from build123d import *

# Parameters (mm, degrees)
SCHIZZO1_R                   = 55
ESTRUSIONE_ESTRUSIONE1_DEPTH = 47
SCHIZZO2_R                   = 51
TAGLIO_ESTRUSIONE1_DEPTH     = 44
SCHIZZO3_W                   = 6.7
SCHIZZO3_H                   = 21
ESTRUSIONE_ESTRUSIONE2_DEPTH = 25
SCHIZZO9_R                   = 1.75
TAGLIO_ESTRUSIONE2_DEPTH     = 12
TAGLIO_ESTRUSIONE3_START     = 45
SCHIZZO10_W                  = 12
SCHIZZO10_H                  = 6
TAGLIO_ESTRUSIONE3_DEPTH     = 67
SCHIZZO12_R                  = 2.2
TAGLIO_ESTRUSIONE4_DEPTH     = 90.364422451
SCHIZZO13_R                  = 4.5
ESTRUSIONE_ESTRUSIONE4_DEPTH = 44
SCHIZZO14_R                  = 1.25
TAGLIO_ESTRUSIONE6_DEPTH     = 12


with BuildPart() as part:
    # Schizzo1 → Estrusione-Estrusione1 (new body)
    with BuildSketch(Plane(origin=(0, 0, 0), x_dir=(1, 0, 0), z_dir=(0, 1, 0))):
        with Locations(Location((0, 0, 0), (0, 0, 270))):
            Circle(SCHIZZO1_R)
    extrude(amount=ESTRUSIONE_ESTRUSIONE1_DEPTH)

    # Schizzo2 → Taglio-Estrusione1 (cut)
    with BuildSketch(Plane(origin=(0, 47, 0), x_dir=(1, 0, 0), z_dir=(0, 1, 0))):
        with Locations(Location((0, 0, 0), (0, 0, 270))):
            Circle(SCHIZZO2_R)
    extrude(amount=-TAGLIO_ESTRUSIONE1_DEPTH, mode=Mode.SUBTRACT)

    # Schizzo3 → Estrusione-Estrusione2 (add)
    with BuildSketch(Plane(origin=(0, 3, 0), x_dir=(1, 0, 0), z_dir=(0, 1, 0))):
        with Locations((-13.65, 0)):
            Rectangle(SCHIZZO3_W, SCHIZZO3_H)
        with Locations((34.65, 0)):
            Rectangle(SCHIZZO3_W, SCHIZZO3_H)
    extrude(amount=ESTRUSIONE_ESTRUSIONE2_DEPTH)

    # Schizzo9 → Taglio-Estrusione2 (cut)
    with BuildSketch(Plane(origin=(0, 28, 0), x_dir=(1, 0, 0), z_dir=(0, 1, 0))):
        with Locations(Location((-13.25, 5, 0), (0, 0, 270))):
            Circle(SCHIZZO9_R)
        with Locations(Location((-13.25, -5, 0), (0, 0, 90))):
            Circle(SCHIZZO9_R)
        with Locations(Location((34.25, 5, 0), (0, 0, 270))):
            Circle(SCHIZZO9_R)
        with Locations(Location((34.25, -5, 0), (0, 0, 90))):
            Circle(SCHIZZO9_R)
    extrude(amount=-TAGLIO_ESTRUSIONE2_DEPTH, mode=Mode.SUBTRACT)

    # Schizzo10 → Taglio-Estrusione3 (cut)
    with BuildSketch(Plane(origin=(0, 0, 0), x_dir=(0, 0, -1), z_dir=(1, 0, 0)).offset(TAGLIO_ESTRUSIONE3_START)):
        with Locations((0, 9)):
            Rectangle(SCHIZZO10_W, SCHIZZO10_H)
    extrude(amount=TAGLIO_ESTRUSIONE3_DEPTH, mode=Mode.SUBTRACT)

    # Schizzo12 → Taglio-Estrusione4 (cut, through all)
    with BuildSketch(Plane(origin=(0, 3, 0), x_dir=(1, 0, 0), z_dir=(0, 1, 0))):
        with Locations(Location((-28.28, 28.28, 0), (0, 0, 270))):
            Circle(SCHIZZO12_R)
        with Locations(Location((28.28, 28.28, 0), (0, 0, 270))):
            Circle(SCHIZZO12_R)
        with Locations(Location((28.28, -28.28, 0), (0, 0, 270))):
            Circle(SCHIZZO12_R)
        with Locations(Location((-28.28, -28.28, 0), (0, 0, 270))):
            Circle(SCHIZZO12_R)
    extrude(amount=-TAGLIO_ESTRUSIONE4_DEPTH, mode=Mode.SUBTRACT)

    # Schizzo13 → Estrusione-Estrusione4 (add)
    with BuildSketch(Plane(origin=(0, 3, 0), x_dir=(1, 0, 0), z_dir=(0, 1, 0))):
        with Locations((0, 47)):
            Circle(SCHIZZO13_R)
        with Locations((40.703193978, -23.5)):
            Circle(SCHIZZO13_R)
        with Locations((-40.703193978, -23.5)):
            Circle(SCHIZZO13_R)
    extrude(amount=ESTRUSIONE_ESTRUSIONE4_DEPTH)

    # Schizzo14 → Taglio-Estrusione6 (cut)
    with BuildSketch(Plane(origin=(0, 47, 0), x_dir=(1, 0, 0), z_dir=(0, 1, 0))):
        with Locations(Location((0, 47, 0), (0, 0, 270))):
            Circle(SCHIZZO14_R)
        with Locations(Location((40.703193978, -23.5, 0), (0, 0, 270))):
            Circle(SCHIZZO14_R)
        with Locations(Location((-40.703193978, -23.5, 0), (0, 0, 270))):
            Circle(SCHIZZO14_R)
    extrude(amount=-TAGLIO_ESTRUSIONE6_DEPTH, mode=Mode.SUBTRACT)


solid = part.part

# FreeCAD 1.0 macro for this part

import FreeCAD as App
import Part
import Sketcher

doc = App.newDocument("Part")
params = doc.addObject("Spreadsheet::Sheet", "Params")
for row, (alias, value) in enumerate([
    ("sketch1_diameter", "110 mm"),
    ("pad1_length", "47 mm"),
    ("sketch2_diameter", "102 mm"),
    ("pocket1_length", "44 mm"),
    ("sketch3_height", "21 mm"),
    ("sketch3_width", "6.7 mm"),
    ("pad2_length", "25 mm"),
    ("sketch4_diameter", "3.5 mm"),
    ("pocket2_length", "12 mm"),
    ("sketch5_width", "6 mm"),
    ("sketch5_height", "12 mm"),
    ("pocket3_length", "67 mm"),
    ("sketch6_diameter", "4.4 mm"),
    ("sketch7_diameter", "9 mm"),
    ("pad3_length", "44 mm"),
    ("sketch8_diameter", "2.5 mm"),
    ("pocket5_length", "12 mm"),
], start=1):
    params.set(f"A{row}", alias)
    params.set(f"B{row}", "=" + value)
    params.setAlias(f"B{row}", alias)

body = doc.addObject("PartDesign::Body", "Body")

# Sketch on XZ plane
sketch1 = doc.addObject("Sketcher::SketchObject", "Sketch")
body.addObject(sketch1)
sketch1.AttachmentSupport = (doc.XZ_Plane, [""])
sketch1.MapMode = "FlatFace"
sketch1.addGeometry(Part.Circle(App.Vector(0, 0, 0), App.Vector(0, 0, 1), 55), False)
sketch1.addConstraint([
    Sketcher.Constraint("Coincident", 0, 3, -1, 1),
    Sketcher.Constraint("Diameter", 0, 110.0),
])
sketch1.setExpression("Constraints[1]", "Params.sketch1_diameter")
pad1 = doc.addObject("PartDesign::Pad", "Pad")
body.addObject(pad1)
pad1.Profile = sketch1
pad1.setExpression("Length", "Params.pad1_length")
pad1.Reversed = True

# Sketch on XZ plane
sketch2 = doc.addObject("Sketcher::SketchObject", "Sketch001")
body.addObject(sketch2)
sketch2.AttachmentSupport = (doc.XZ_Plane, [""])
sketch2.MapMode = "FlatFace"
sketch2.AttachmentOffset = App.Placement(App.Vector(0, 0, -47), App.Rotation())
sketch2.addGeometry(Part.Circle(App.Vector(0, 0, 0), App.Vector(0, 0, 1), 51), False)
sketch2.addConstraint([
    Sketcher.Constraint("Coincident", 0, 3, -1, 1),
    Sketcher.Constraint("Diameter", 0, 102.0),
])
sketch2.setExpression("Constraints[1]", "Params.sketch2_diameter")
pocket1 = doc.addObject("PartDesign::Pocket", "Pocket")
body.addObject(pocket1)
pocket1.Profile = sketch2
pocket1.setExpression("Length", "Params.pocket1_length")
pocket1.Reversed = True

# Sketch on XZ plane
sketch3 = doc.addObject("Sketcher::SketchObject", "Sketch002")
body.addObject(sketch3)
sketch3.AttachmentSupport = (doc.XZ_Plane, [""])
sketch3.MapMode = "FlatFace"
sketch3.AttachmentOffset = App.Placement(App.Vector(0, 0, -3), App.Rotation())
sketch3.addGeometry([
    Part.LineSegment(App.Vector(-17, -10, 0), App.Vector(-17, 10, 0)),  # 0
    Part.LineSegment(App.Vector(-17, 10, 0), App.Vector(-10, 10, 0)),  # 1
    Part.LineSegment(App.Vector(-10, 10, 0), App.Vector(-10, -10, 0)),  # 2
    Part.LineSegment(App.Vector(-10, -10, 0), App.Vector(-17, -10, 0)),  # 3
    Part.LineSegment(App.Vector(31, -10, 0), App.Vector(31, 10, 0)),  # 4
    Part.LineSegment(App.Vector(31, 10, 0), App.Vector(38, 10, 0)),  # 5
    Part.LineSegment(App.Vector(38, 10, 0), App.Vector(38, -10, 0)),  # 6
    Part.LineSegment(App.Vector(38, -10, 0), App.Vector(31, -10, 0)),  # 7
], False)
sketch3.addConstraint([
    Sketcher.Constraint("Coincident", 0, 2, 1, 1),
    Sketcher.Constraint("Coincident", 1, 2, 2, 1),
    Sketcher.Constraint("Coincident", 2, 2, 3, 1),
    Sketcher.Constraint("Coincident", 3, 2, 0, 1),
    Sketcher.Constraint("Coincident", 4, 2, 5, 1),
    Sketcher.Constraint("Coincident", 5, 2, 6, 1),
    Sketcher.Constraint("Coincident", 6, 2, 7, 1),
    Sketcher.Constraint("Coincident", 7, 2, 4, 1),
    Sketcher.Constraint("Vertical", 0),
    Sketcher.Constraint("Horizontal", 1),
    Sketcher.Constraint("Vertical", 2),
    Sketcher.Constraint("Horizontal", 3),
    Sketcher.Constraint("Vertical", 4),
    Sketcher.Constraint("Horizontal", 5),
    Sketcher.Constraint("Vertical", 6),
    Sketcher.Constraint("Horizontal", 7),
    Sketcher.Constraint("Horizontal", 1, 2, 4, 2),
    Sketcher.Constraint("Horizontal", 3, 2, 6, 2),
    Sketcher.Constraint("Equal", 3, 5),
    Sketcher.Constraint("DistanceY", 0, 1, 0, 2, 21.0),
    Sketcher.Constraint("DistanceX", 1, 1, 1, 2, 6.7),
    Sketcher.Constraint("DistanceX", 0, 2, -1, 1, 17.0),
    Sketcher.Constraint("DistanceX", -1, 1, 5, 2, 38.0),
    Sketcher.Constraint("DistanceY", -1, 1, 0, 2, 10.5),
])
sketch3.setExpression("Constraints[19]", "Params.sketch3_height")
sketch3.setExpression("Constraints[20]", "Params.sketch3_width")
pad2 = doc.addObject("PartDesign::Pad", "Pad001")
body.addObject(pad2)
pad2.Profile = sketch3
pad2.setExpression("Length", "Params.pad2_length")
pad2.Reversed = True

# Sketch on XZ plane
sketch4 = doc.addObject("Sketcher::SketchObject", "Sketch003")
body.addObject(sketch4)
sketch4.AttachmentSupport = (doc.XZ_Plane, [""])
sketch4.MapMode = "FlatFace"
sketch4.AttachmentOffset = App.Placement(App.Vector(0, 0, -28), App.Rotation())
sketch4.addGeometry([
    Part.Circle(App.Vector(-13.2, -5, 0), App.Vector(0, 0, 1), 1.8),
    Part.Circle(App.Vector(-13.2, 5, 0), App.Vector(0, 0, 1), 1.8),
    Part.Circle(App.Vector(34.2, -5, 0), App.Vector(0, 0, 1), 1.8),
    Part.Circle(App.Vector(34.2, 5, 0), App.Vector(0, 0, 1), 1.8),
], False)
sketch4.addConstraint([
    Sketcher.Constraint("Equal", 0, 1),
    Sketcher.Constraint("Equal", 1, 2),
    Sketcher.Constraint("Equal", 2, 3),
    Sketcher.Constraint("Symmetric", 0, 3, 1, 3, -1),
    Sketcher.Constraint("Symmetric", 2, 3, 3, 3, -1),
    Sketcher.Constraint("Horizontal", 0, 3, 2, 3),
    Sketcher.Constraint("Diameter", 0, 3.5),
    Sketcher.Constraint("DistanceY", 0, 3, -1, 1, 5.0),
    Sketcher.Constraint("DistanceX", 0, 3, 2, 3, 47.5),
    Sketcher.Constraint("DistanceX", 0, 3, -1, 1, 13.25),
])
sketch4.setExpression("Constraints[6]", "Params.sketch4_diameter")
pocket2 = doc.addObject("PartDesign::Pocket", "Pocket001")
body.addObject(pocket2)
pocket2.Profile = sketch4
pocket2.setExpression("Length", "Params.pocket2_length")
pocket2.Reversed = True

# Sketch on YZ plane
sketch5 = doc.addObject("Sketcher::SketchObject", "Sketch004")
body.addObject(sketch5)
sketch5.AttachmentSupport = (doc.YZ_Plane, [""])
sketch5.MapMode = "FlatFace"
sketch5.AttachmentOffset = App.Placement(App.Vector(0, 0, 45), App.Rotation())
sketch5.addGeometry([
    Part.LineSegment(App.Vector(12, 6, 0), App.Vector(6, 6, 0)),
    Part.LineSegment(App.Vector(6, 6, 0), App.Vector(6, -6, 0)),
    Part.LineSegment(App.Vector(6, -6, 0), App.Vector(12, -6, 0)),
    Part.LineSegment(App.Vector(12, -6, 0), App.Vector(12, 6, 0)),
], False)
sketch5.addConstraint([
    Sketcher.Constraint("Coincident", 0, 2, 1, 1),
    Sketcher.Constraint("Coincident", 1, 2, 2, 1),
    Sketcher.Constraint("Coincident", 2, 2, 3, 1),
    Sketcher.Constraint("Coincident", 3, 2, 0, 1),
    Sketcher.Constraint("Horizontal", 0),
    Sketcher.Constraint("Vertical", 1),
    Sketcher.Constraint("Horizontal", 2),
    Sketcher.Constraint("Vertical", 3),
    Sketcher.Constraint("DistanceX", 0, 2, 0, 1, 6.0),
    Sketcher.Constraint("DistanceY", 1, 2, 1, 1, 12.0),
    Sketcher.Constraint("DistanceX", -1, 1, 0, 2, 6.0),
    Sketcher.Constraint("DistanceY", -1, 1, 0, 2, 6.0),
])
sketch5.setExpression("Constraints[8]", "Params.sketch5_width")
sketch5.setExpression("Constraints[9]", "Params.sketch5_height")
pocket3 = doc.addObject("PartDesign::Pocket", "Pocket002")
body.addObject(pocket3)
pocket3.Profile = sketch5
pocket3.setExpression("Length", "Params.pocket3_length")
pocket3.Reversed = True

# Sketch on XZ plane
sketch6 = doc.addObject("Sketcher::SketchObject", "Sketch005")
body.addObject(sketch6)
sketch6.AttachmentSupport = (doc.XZ_Plane, [""])
sketch6.MapMode = "FlatFace"
sketch6.AttachmentOffset = App.Placement(App.Vector(0, 0, -3), App.Rotation())
sketch6.addGeometry([
    Part.Circle(App.Vector(-28.3, -28.3, 0), App.Vector(0, 0, 1), 2.2),
    Part.Circle(App.Vector(28.3, -28.3, 0), App.Vector(0, 0, 1), 2.2),
    Part.Circle(App.Vector(28.3, 28.3, 0), App.Vector(0, 0, 1), 2.2),
    Part.Circle(App.Vector(-28.3, 28.3, 0), App.Vector(0, 0, 1), 2.2),
], False)
sketch6.addConstraint([
    Sketcher.Constraint("Equal", 0, 1),
    Sketcher.Constraint("Equal", 1, 2),
    Sketcher.Constraint("Equal", 2, 3),
    Sketcher.Constraint("Symmetric", 0, 3, 2, 3, -1, 1),
    Sketcher.Constraint("Symmetric", 1, 3, 3, 3, -1, 1),
    Sketcher.Constraint("Symmetric", 0, 3, 1, 3, -2),
    Sketcher.Constraint("Diameter", 0, 4.4),
    Sketcher.Constraint("DistanceX", 0, 3, -1, 1, 28.28),
    Sketcher.Constraint("DistanceY", 0, 3, -1, 1, 28.28),
])
sketch6.setExpression("Constraints[6]", "Params.sketch6_diameter")
pocket4 = doc.addObject("PartDesign::Pocket", "Pocket003")
body.addObject(pocket4)
pocket4.Profile = sketch6
pocket4.Type = "ThroughAll"
pocket4.Reversed = True

# Sketch on XZ plane
sketch7 = doc.addObject("Sketcher::SketchObject", "Sketch006")
body.addObject(sketch7)
sketch7.AttachmentSupport = (doc.XZ_Plane, [""])
sketch7.MapMode = "FlatFace"
sketch7.AttachmentOffset = App.Placement(App.Vector(0, 0, -3), App.Rotation())
sketch7.addGeometry([
    Part.Circle(App.Vector(0, -47, 0), App.Vector(0, 0, 1), 4.5),
    Part.Circle(App.Vector(40.7, 23.5, 0), App.Vector(0, 0, 1), 4.5),
    Part.Circle(App.Vector(-40.7, 23.5, 0), App.Vector(0, 0, 1), 4.5),
], False)
sketch7.addConstraint([
    Sketcher.Constraint("Equal", 0, 1),
    Sketcher.Constraint("Equal", 1, 2),
    Sketcher.Constraint("Symmetric", 1, 3, 2, 3, -2),
    Sketcher.Constraint("PointOnObject", 0, 3, -2),
    Sketcher.Constraint("Diameter", 0, 9.0),
    Sketcher.Constraint("DistanceY", 0, 3, -1, 1, 47.0),
    Sketcher.Constraint("DistanceY", -1, 1, 1, 3, 23.5),
    Sketcher.Constraint("DistanceX", -1, 1, 1, 3, 40.703194),
])
sketch7.setExpression("Constraints[4]", "Params.sketch7_diameter")
pad3 = doc.addObject("PartDesign::Pad", "Pad002")
body.addObject(pad3)
pad3.Profile = sketch7
pad3.setExpression("Length", "Params.pad3_length")
pad3.Reversed = True

# Sketch on XZ plane
sketch8 = doc.addObject("Sketcher::SketchObject", "Sketch007")
body.addObject(sketch8)
sketch8.AttachmentSupport = (doc.XZ_Plane, [""])
sketch8.MapMode = "FlatFace"
sketch8.AttachmentOffset = App.Placement(App.Vector(0, 0, -47), App.Rotation())
sketch8.addGeometry([
    Part.Circle(App.Vector(0, -47, 0), App.Vector(0, 0, 1), 1.2),
    Part.Circle(App.Vector(40.7, 23.5, 0), App.Vector(0, 0, 1), 1.2),
    Part.Circle(App.Vector(-40.7, 23.5, 0), App.Vector(0, 0, 1), 1.2),
], False)
sketch8.addConstraint([
    Sketcher.Constraint("Equal", 0, 1),
    Sketcher.Constraint("Equal", 1, 2),
    Sketcher.Constraint("Symmetric", 1, 3, 2, 3, -2),
    Sketcher.Constraint("PointOnObject", 0, 3, -2),
    Sketcher.Constraint("Diameter", 0, 2.5),
    Sketcher.Constraint("DistanceY", 0, 3, -1, 1, 47.0),
    Sketcher.Constraint("DistanceY", -1, 1, 1, 3, 23.5),
    Sketcher.Constraint("DistanceX", -1, 1, 1, 3, 40.703194),
])
sketch8.setExpression("Constraints[4]", "Params.sketch8_diameter")
pocket5 = doc.addObject("PartDesign::Pocket", "Pocket004")
body.addObject(pocket5)
pocket5.Profile = sketch8
pocket5.setExpression("Length", "Params.pocket5_length")
pocket5.Reversed = True

doc.recompute()
